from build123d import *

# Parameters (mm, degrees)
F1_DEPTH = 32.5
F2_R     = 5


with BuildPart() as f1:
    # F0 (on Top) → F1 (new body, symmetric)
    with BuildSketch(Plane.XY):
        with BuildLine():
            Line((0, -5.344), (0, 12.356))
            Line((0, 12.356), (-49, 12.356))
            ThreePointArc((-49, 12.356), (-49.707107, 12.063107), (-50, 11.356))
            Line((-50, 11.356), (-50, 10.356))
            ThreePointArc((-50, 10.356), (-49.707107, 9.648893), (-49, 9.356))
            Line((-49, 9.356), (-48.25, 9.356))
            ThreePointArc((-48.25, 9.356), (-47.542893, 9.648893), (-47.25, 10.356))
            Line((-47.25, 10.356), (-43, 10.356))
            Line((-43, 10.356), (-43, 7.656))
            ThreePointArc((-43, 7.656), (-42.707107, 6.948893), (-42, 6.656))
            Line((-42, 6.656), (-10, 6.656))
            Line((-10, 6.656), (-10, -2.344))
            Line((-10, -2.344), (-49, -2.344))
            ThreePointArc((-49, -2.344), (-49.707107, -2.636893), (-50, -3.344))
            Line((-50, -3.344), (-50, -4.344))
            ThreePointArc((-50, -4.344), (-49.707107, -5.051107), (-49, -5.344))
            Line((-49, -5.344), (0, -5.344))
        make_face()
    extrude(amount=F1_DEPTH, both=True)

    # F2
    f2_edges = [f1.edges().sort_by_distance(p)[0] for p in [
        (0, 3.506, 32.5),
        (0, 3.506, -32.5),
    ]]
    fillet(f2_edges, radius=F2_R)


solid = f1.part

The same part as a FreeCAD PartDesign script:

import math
import FreeCAD as App
import Part
import Sketcher

V = App.Vector
Q = App.Units.Quantity


def edges_at(feature, points):
    """Names of the edges that pass closest to the given points."""
    edges = feature.Shape.Edges
    near = lambda p: min(range(len(edges)), key=lambda i: edges[i].distToShape(Part.Vertex(*p))[0])
    return sorted({f"Edge{near(p) + 1}" for p in points})

doc = App.newDocument("Part")
body = doc.addObject("PartDesign::Body", "Body")

# Sketch on XY plane
sketch1 = body.newObject("Sketcher::SketchObject", "Sketch")
sketch1.AttachmentSupport = (doc.getObject("XY_Plane"), [""])
sketch1.MapMode = "FlatFace"
sketch1.addGeometry(Part.LineSegment(V(0, -5.3, 0), V(0, 12.4, 0)), False)
sketch1.addGeometry(Part.LineSegment(V(0, 12.4, 0), V(-49, 12.4, 0)), False)
sketch1.addGeometry(Part.ArcOfCircle(Part.Circle(V(-49, 11.4, 0), V(0, 0, 1), 1), math.radians(90), math.radians(180)), False)
sketch1.addGeometry(Part.LineSegment(V(-50, 11.4, 0), V(-50, 10.4, 0)), False)
sketch1.addGeometry(Part.ArcOfCircle(Part.Circle(V(-49, 10.4, 0), V(0, 0, 1), 1), math.radians(180), math.radians(270)), False)
sketch1.addGeometry(Part.LineSegment(V(-49, 9.4, 0), V(-48.2, 9.4, 0)), False)
sketch1.addGeometry(Part.ArcOfCircle(Part.Circle(V(-48.2, 10.4, 0), V(0, 0, 1), 1), math.radians(-90), math.radians(0)), False)
sketch1.addGeometry(Part.LineSegment(V(-47.2, 10.4, 0), V(-43, 10.4, 0)), False)
sketch1.addGeometry(Part.LineSegment(V(-43, 10.4, 0), V(-43, 7.7, 0)), False)
sketch1.addGeometry(Part.ArcOfCircle(Part.Circle(V(-42, 7.7, 0), V(0, 0, 1), 1), math.radians(180), math.radians(270)), False)
sketch1.addGeometry(Part.LineSegment(V(-42, 6.7, 0), V(-10, 6.7, 0)), False)
sketch1.addGeometry(Part.LineSegment(V(-10, 6.7, 0), V(-10, -2.3, 0)), False)
sketch1.addGeometry(Part.LineSegment(V(-10, -2.3, 0), V(-49, -2.3, 0)), False)
sketch1.addGeometry(Part.ArcOfCircle(Part.Circle(V(-49, -3.3, 0), V(0, 0, 1), 1), math.radians(90), math.radians(180)), False)
sketch1.addGeometry(Part.LineSegment(V(-50, -3.3, 0), V(-50, -4.3, 0)), False)
sketch1.addGeometry(Part.ArcOfCircle(Part.Circle(V(-49, -4.3, 0), V(0, 0, 1), 1), math.radians(180), math.radians(270)), False)
sketch1.addGeometry(Part.LineSegment(V(-49, -5.3, 0), V(0, -5.3, 0)), False)
sketch1.addConstraint(Sketcher.Constraint("Coincident", 0, 2, 1, 1))
sketch1.addConstraint(Sketcher.Constraint("Tangent", 1, 2, 2, 1))
sketch1.addConstraint(Sketcher.Constraint("Tangent", 2, 2, 3, 1))
sketch1.addConstraint(Sketcher.Constraint("Tangent", 3, 2, 4, 1))
sketch1.addConstraint(Sketcher.Constraint("Tangent", 4, 2, 5, 1))
sketch1.addConstraint(Sketcher.Constraint("Tangent", 5, 2, 6, 1))
sketch1.addConstraint(Sketcher.Constraint("Coincident", 6, 2, 7, 1))
sketch1.addConstraint(Sketcher.Constraint("Coincident", 7, 2, 8, 1))
sketch1.addConstraint(Sketcher.Constraint("Tangent", 8, 2, 9, 1))
sketch1.addConstraint(Sketcher.Constraint("Tangent", 9, 2, 10, 1))
sketch1.addConstraint(Sketcher.Constraint("Coincident", 10, 2, 11, 1))
sketch1.addConstraint(Sketcher.Constraint("Coincident", 11, 2, 12, 1))
sketch1.addConstraint(Sketcher.Constraint("Tangent", 12, 2, 13, 1))
sketch1.addConstraint(Sketcher.Constraint("Tangent", 13, 2, 14, 1))
sketch1.addConstraint(Sketcher.Constraint("Tangent", 14, 2, 15, 1))
sketch1.addConstraint(Sketcher.Constraint("Tangent", 15, 2, 16, 1))
sketch1.addConstraint(Sketcher.Constraint("Coincident", 16, 2, 0, 1))
sketch1.addConstraint(Sketcher.Constraint("Vertical", 0))
sketch1.addConstraint(Sketcher.Constraint("Horizontal", 1))
sketch1.addConstraint(Sketcher.Constraint("Vertical", 3))
sketch1.addConstraint(Sketcher.Constraint("Horizontal", 5))
sketch1.addConstraint(Sketcher.Constraint("Horizontal", 7))
sketch1.addConstraint(Sketcher.Constraint("Vertical", 8))
sketch1.addConstraint(Sketcher.Constraint("Horizontal", 10))
sketch1.addConstraint(Sketcher.Constraint("Vertical", 11))
sketch1.addConstraint(Sketcher.Constraint("Horizontal", 12))
sketch1.addConstraint(Sketcher.Constraint("Vertical", 14))
sketch1.addConstraint(Sketcher.Constraint("Horizontal", 16))
sketch1.addConstraint(Sketcher.Constraint("Equal", 2, 4))
sketch1.addConstraint(Sketcher.Constraint("Equal", 4, 6))
sketch1.addConstraint(Sketcher.Constraint("Equal", 6, 9))
sketch1.addConstraint(Sketcher.Constraint("Equal", 9, 13))
sketch1.addConstraint(Sketcher.Constraint("Equal", 13, 15))
sketch1.addConstraint(Sketcher.Constraint("PointOnObject", 0, 2, -2))
sketch1.addConstraint(Sketcher.Constraint("Horizontal", 3, 2, 6, 2))
sketch1.addConstraint(Sketcher.Constraint("Vertical", 4, 3, 13, 3))
sketch1.addConstraint(Sketcher.Constraint("Equal", 3, 14))
sketch1.addConstraint(Sketcher.Constraint("Radius", 2, Q("0.999999 mm")))
sketch1.addConstraint(Sketcher.Constraint("DistanceX", 1, 2, 1, 1, Q("49 mm")))
sketch1.addConstraint(Sketcher.Constraint("DistanceX", 10, 1, 10, 2, Q("32 mm")))
sketch1.addConstraint(Sketcher.Constraint("DistanceX", 12, 2, 12, 1, Q("39 mm")))
sketch1.addConstraint(Sketcher.Constraint("DistanceY", 3, 2, 3, 1, Q("1 mm")))
sketch1.addConstraint(Sketcher.Constraint("DistanceY", 11, 2, 11, 1, Q("9 mm")))
sketch1.addConstraint(Sketcher.Constraint("DistanceY", 0, 1, 0, 2, Q("17.7 mm")))
sketch1.addConstraint(Sketcher.Constraint("DistanceX", 5, 1, 5, 2, Q("0.75 mm")))
sketch1.addConstraint(Sketcher.Constraint("DistanceY", -1, 1, 2, 3, Q("11.356001 mm")))
pad1 = body.newObject("PartDesign::Pad", "Pad")
pad1.Profile = sketch1
pad1.Length = 65
pad1.Midplane = True
doc.recompute()

fillet = body.newObject("PartDesign::Fillet", "Fillet")
fillet.Base = (pad1, edges_at(pad1, [(0, 3.506, 32.5), (0, 3.506, -32.5)]))
fillet.Radius = 5

doc.recompute()
